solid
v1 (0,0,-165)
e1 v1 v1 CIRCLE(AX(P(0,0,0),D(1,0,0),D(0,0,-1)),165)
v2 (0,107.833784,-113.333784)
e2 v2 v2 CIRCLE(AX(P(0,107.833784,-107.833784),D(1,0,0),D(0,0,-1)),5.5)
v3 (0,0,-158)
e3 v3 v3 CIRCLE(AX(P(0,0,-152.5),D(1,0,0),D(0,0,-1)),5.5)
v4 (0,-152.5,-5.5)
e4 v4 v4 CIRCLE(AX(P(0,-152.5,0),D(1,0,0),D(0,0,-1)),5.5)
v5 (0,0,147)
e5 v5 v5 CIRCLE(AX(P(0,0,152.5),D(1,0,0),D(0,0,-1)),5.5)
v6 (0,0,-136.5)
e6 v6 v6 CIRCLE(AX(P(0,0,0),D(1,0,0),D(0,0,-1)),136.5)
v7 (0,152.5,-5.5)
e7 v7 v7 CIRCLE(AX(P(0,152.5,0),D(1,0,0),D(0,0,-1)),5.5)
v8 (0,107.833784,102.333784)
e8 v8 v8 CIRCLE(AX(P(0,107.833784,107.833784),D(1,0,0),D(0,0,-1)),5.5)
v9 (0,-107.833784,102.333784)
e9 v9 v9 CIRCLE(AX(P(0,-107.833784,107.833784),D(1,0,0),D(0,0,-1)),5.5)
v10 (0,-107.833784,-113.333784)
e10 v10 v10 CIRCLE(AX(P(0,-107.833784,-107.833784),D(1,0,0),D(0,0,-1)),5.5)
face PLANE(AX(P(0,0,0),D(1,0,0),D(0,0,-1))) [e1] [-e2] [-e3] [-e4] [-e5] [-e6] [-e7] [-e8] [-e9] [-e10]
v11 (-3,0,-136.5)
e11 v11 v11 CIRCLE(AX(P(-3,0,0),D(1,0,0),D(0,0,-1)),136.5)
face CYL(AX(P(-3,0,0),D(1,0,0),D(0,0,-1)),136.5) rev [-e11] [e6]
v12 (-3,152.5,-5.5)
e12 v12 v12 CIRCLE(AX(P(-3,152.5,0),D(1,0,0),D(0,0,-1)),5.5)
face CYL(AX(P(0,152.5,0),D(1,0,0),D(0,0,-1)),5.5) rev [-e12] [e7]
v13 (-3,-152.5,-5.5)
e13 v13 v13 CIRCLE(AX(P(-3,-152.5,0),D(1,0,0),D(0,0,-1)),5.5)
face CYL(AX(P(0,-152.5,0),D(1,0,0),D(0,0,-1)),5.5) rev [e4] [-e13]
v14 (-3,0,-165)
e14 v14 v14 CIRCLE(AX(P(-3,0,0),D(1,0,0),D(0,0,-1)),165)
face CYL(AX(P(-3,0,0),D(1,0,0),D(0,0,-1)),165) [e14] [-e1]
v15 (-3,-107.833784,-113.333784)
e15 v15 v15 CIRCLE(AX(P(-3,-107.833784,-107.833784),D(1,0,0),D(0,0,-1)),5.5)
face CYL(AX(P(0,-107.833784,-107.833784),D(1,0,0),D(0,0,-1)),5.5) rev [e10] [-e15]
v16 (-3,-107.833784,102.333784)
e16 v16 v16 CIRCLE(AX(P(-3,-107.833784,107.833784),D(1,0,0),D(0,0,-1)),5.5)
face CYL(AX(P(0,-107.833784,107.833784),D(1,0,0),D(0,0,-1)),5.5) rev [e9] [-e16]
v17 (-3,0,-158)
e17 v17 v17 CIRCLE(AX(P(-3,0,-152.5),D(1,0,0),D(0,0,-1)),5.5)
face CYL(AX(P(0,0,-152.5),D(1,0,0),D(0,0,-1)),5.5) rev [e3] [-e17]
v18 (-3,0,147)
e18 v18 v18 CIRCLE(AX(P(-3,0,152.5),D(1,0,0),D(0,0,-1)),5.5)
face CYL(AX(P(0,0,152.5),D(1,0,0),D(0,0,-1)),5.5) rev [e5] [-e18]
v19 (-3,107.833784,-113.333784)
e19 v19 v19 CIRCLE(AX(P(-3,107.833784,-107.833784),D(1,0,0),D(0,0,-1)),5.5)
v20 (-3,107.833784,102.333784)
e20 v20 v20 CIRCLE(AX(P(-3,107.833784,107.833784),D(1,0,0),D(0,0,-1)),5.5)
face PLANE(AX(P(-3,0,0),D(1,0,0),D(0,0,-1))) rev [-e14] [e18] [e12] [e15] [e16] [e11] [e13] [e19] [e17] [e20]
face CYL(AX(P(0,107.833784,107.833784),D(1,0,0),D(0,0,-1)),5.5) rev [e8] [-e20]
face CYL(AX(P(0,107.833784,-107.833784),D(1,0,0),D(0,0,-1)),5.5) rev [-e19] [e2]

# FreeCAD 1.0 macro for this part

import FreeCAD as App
import Part
import Sketcher

doc = App.newDocument("Part")
body = doc.addObject("PartDesign::Body", "Body")

sketch1 = doc.addObject("Sketcher::SketchObject", "Sketch")
body.addObject(sketch1)
sketch1.AttachmentSupport = (doc.YZ_Plane, [""])
sketch1.MapMode = "FlatFace"
sketch1.addGeometry([
    Part.Circle(App.Vector(0, 0, 0), App.Vector(0, 0, 1), 165),
    Part.Circle(App.Vector(0, 0, 0), App.Vector(0, 0, 1), 136),
], False)
sketch1.addConstraint([
    Sketcher.Constraint("Coincident", 0, 3, -1, 1),
    Sketcher.Constraint("Coincident", 1, 3, -1, 1),
    Sketcher.Constraint("Diameter", 0, 330.0),
    Sketcher.Constraint("Diameter", 1, 273.0),
])
pad1 = doc.addObject("PartDesign::Pad", "Pad")
body.addObject(pad1)
pad1.Profile = sketch1
pad1.Length = 3
pad1.Reversed = True

sketch2 = doc.addObject("Sketcher::SketchObject", "Sketch001")
body.addObject(sketch2)
sketch2.AttachmentSupport = (doc.YZ_Plane, [""])
sketch2.MapMode = "FlatFace"
sketch2.addGeometry(Part.Circle(App.Vector(152, 0, 0), App.Vector(0, 0, 1), 6), False)
sketch2.addConstraint([
    Sketcher.Constraint("PointOnObject", 0, 3, -1),
    Sketcher.Constraint("Diameter", 0, 11.0),
    Sketcher.Constraint("DistanceX", -1, 1, 0, 3, 152.5),
])
doc.recompute()
hole = doc.addObject("PartDesign::Hole", "Hole")
body.addObject(hole)
hole.Profile = sketch2
hole.ThreadType = "None"
hole.Diameter = 11
hole.DepthType = "ThroughAll"
doc.recompute()

polarpattern = doc.addObject("PartDesign::PolarPattern", "PolarPattern")
body.addObject(polarpattern)
polarpattern.Originals = [hole]
polarpattern.Axis = (doc.X_Axis, [""])
polarpattern.Angle = 360
polarpattern.Occurrences = 8
body.Tip = polarpattern

doc.recompute()
